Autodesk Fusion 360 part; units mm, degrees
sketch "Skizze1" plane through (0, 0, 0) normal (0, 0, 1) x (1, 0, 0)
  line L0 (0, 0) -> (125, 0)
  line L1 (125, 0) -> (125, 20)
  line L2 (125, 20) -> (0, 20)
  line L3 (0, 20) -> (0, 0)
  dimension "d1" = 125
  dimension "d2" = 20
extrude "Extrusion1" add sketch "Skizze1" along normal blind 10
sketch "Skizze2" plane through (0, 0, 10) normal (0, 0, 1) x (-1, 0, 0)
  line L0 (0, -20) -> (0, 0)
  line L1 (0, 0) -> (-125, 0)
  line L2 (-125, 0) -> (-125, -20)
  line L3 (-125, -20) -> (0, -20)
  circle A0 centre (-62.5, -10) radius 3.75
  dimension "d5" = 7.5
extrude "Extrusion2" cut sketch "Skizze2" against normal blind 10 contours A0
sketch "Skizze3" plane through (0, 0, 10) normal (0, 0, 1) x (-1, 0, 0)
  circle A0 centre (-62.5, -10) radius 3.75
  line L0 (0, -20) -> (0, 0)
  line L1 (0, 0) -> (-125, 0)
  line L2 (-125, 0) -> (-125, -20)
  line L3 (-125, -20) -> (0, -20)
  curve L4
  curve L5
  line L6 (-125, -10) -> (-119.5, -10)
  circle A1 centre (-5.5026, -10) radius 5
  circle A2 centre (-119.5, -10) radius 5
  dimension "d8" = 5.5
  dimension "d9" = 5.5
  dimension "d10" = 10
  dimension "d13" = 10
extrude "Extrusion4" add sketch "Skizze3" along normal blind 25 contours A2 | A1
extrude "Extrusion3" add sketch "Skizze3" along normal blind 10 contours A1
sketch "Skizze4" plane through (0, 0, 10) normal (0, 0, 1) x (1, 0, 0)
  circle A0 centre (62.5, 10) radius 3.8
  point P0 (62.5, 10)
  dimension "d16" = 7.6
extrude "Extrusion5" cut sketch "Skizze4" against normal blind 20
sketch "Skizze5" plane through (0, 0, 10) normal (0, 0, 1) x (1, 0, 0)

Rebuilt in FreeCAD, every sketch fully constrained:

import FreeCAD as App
import Part
import Sketcher
from FreeCAD import Vector


def add_polygon(sketch, points):
    """Adds a closed chain of lines whose ends are joined by coincident constraints."""
    first, n = sketch.GeometryCount, len(points)
    for a, b in zip(points, points[1:] + points[:1]):
        sketch.addGeometry(Part.LineSegment(App.Vector(*a, 0), App.Vector(*b, 0)), False)
    for i in range(n):
        sketch.addConstraint(Sketcher.Constraint("Coincident", first + i, 2, first + (i + 1) % n, 1))

doc = App.newDocument("Part")
body = doc.addObject("PartDesign::Body", "Body")

# Sketch on XY plane
sketch1 = body.newObject("Sketcher::SketchObject", "Sketch")
sketch1.AttachmentSupport = (doc.getObject("XY_Plane"), [""])
sketch1.MapMode = "FlatFace"
add_polygon(sketch1, [(0, 20), (0, 0), (125, 0), (125, 20)])  # lines 0-3
sketch1.addConstraint([
    Sketcher.Constraint("Vertical", 0),
    Sketcher.Constraint("Horizontal", 1),
    Sketcher.Constraint("Vertical", 2),
    Sketcher.Constraint("Horizontal", 3),
    Sketcher.Constraint("Coincident", 0, 2, -1, 1),
    Sketcher.Constraint("DistanceX", 1, 1, 1, 2, 125.0),
    Sketcher.Constraint("DistanceY", 0, 2, 0, 1, 20.0),
])
pad1 = body.newObject("PartDesign::Pad", "Pad")
pad1.Profile = sketch1
pad1.Length = 10

# Sketch on XY plane
sketch2 = body.newObject("Sketcher::SketchObject", "Sketch001")
sketch2.AttachmentSupport = (doc.getObject("XY_Plane"), [""])
sketch2.MapMode = "FlatFace"
sketch2.AttachmentOffset = App.Placement(Vector(0, 0, 10), App.Rotation())
sketch2.addGeometry(Part.Circle(Vector(62.5, 10, 0), Vector(0, 0, 1), 3.8), False)
sketch2.addConstraint([
    Sketcher.Constraint("Diameter", 0, 7.5),
    Sketcher.Constraint("DistanceY", -1, 1, 0, 3, 10.0),
    Sketcher.Constraint("DistanceX", -1, 1, 0, 3, 62.5),
])
pocket1 = body.newObject("PartDesign::Pocket", "Pocket")
pocket1.Profile = sketch2
pocket1.Length = 10

# Sketch on XY plane
sketch3 = body.newObject("Sketcher::SketchObject", "Sketch002")
sketch3.AttachmentSupport = (doc.getObject("XY_Plane"), [""])
sketch3.MapMode = "FlatFace"
sketch3.AttachmentOffset = App.Placement(Vector(0, 0, 10), App.Rotation())
sketch3.addGeometry([
    Part.Circle(Vector(120, 10, 0), Vector(0, 0, 1), 5),
    Part.Circle(Vector(6, 10, 0), Vector(0, 0, 1), 5),
], False)
sketch3.addConstraint([
    Sketcher.Constraint("Equal", 0, 1),
    Sketcher.Constraint("Horizontal", 0, 3, 1, 3),
    Sketcher.Constraint("Diameter", 0, 10.0),
    Sketcher.Constraint("DistanceY", -1, 1, 0, 3, 10.0),
    Sketcher.Constraint("DistanceX", -1, 1, 0, 3, 119.5),
    Sketcher.Constraint("DistanceX", -1, 1, 1, 3, 5.5026),
])
pad2 = body.newObject("PartDesign::Pad", "Pad001")
pad2.Profile = sketch3
pad2.Length = 25

# Sketch on XY plane
sketch4 = body.newObject("Sketcher::SketchObject", "Sketch003")
sketch4.AttachmentSupport = (doc.getObject("XY_Plane"), [""])
sketch4.MapMode = "FlatFace"
sketch4.AttachmentOffset = App.Placement(Vector(0, 0, 10), App.Rotation())
sketch4.addGeometry(Part.Circle(Vector(6, 10, 0), Vector(0, 0, 1), 5), False)
sketch4.addConstraint([
    Sketcher.Constraint("Diameter", 0, 10.0),
    Sketcher.Constraint("DistanceY", -1, 1, 0, 3, 10.0),
    Sketcher.Constraint("DistanceX", -1, 1, 0, 3, 5.5026),
])
pad3 = body.newObject("PartDesign::Pad", "Pad002")
pad3.Profile = sketch4
pad3.Length = 10

# Sketch on XY plane
sketch5 = body.newObject("Sketcher::SketchObject", "Sketch004")
sketch5.AttachmentSupport = (doc.getObject("XY_Plane"), [""])
sketch5.MapMode = "FlatFace"
sketch5.AttachmentOffset = App.Placement(Vector(0, 0, 10), App.Rotation())
sketch5.addGeometry(Part.Circle(Vector(62.5, 10, 0), Vector(0, 0, 1), 3.8), False)
sketch5.addConstraint([
    Sketcher.Constraint("Diameter", 0, 7.6),
    Sketcher.Constraint("DistanceY", -1, 1, 0, 3, 10.0),
    Sketcher.Constraint("DistanceX", -1, 1, 0, 3, 62.5),
])
pocket2 = body.newObject("PartDesign::Pocket", "Pocket001")
pocket2.Profile = sketch5
pocket2.Length = 20

doc.recompute()
